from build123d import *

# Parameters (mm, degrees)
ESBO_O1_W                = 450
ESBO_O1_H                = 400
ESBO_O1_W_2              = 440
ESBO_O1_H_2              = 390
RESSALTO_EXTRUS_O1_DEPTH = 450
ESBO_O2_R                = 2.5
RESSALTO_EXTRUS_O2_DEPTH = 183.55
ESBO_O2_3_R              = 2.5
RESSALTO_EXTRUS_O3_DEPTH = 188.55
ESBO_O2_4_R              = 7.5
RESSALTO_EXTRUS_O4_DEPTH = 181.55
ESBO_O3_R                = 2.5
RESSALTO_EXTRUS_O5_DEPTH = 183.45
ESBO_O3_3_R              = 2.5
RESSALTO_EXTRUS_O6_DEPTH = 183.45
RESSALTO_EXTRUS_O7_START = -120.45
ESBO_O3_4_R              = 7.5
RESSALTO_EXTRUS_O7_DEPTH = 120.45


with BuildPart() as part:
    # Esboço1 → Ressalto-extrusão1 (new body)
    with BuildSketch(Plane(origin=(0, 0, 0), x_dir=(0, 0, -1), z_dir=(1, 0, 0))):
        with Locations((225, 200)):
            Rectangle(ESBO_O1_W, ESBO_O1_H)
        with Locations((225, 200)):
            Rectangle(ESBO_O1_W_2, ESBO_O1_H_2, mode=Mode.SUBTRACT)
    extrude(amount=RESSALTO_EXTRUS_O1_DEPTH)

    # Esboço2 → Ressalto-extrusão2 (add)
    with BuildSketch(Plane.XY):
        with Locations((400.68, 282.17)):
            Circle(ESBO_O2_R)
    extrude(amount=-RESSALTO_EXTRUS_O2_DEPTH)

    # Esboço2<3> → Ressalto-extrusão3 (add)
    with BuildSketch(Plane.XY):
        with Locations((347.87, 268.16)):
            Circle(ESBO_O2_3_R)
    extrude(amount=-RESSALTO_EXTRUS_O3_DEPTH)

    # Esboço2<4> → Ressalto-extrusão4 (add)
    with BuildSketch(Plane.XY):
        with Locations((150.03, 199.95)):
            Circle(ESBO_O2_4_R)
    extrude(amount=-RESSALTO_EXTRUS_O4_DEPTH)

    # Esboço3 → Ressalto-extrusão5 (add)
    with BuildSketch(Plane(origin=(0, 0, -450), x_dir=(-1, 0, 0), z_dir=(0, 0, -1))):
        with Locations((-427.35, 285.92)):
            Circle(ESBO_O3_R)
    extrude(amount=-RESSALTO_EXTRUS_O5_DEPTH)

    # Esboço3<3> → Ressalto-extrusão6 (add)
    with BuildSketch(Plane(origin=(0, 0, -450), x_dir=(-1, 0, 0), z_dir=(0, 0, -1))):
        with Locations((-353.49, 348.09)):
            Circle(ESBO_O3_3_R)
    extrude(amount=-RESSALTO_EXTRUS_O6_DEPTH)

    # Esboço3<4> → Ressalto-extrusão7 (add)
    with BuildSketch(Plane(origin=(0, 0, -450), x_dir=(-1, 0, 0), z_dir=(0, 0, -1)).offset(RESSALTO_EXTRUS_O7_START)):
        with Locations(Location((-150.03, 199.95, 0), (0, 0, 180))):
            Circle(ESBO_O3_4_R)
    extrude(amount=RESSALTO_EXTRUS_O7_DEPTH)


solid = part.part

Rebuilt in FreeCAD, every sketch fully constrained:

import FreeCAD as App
import Part
import Sketcher

V = App.Vector

doc = App.newDocument("Part")
body = doc.addObject("PartDesign::Body", "Body")

# Sketch on YZ plane
sketch1 = doc.addObject("Sketcher::SketchObject", "Sketch")
body.addObject(sketch1)
sketch1.AttachmentSupport = (doc.YZ_Plane, [""])
sketch1.MapMode = "FlatFace"
sketch1.addGeometry([
    Part.LineSegment(V(400, 0, 0), V(0, 0, 0)),  # 0
    Part.LineSegment(V(0, 0, 0), V(0, -450, 0)),  # 1
    Part.LineSegment(V(0, -450, 0), V(400, -450, 0)),  # 2
    Part.LineSegment(V(400, -450, 0), V(400, 0, 0)),  # 3
    Part.LineSegment(V(5, -445, 0), V(5, -5, 0)),  # 4
    Part.LineSegment(V(5, -5, 0), V(395, -5, 0)),  # 5
    Part.LineSegment(V(395, -5, 0), V(395, -445, 0)),  # 6
    Part.LineSegment(V(395, -445, 0), V(5, -445, 0)),  # 7
], False)
sketch1.addConstraint([
    Sketcher.Constraint("Coincident", 0, 2, 1, 1),
    Sketcher.Constraint("Coincident", 1, 2, 2, 1),
    Sketcher.Constraint("Coincident", 2, 2, 3, 1),
    Sketcher.Constraint("Coincident", 3, 2, 0, 1),
    Sketcher.Constraint("Coincident", 4, 2, 5, 1),
    Sketcher.Constraint("Coincident", 5, 2, 6, 1),
    Sketcher.Constraint("Coincident", 6, 2, 7, 1),
    Sketcher.Constraint("Coincident", 7, 2, 4, 1),
    Sketcher.Constraint("Horizontal", 0),
    Sketcher.Constraint("Vertical", 1),
    Sketcher.Constraint("Horizontal", 2),
    Sketcher.Constraint("Vertical", 3),
    Sketcher.Constraint("Vertical", 4),
    Sketcher.Constraint("Horizontal", 5),
    Sketcher.Constraint("Vertical", 6),
    Sketcher.Constraint("Horizontal", 7),
    Sketcher.Constraint("Coincident", 0, 2, -1, 1),
    Sketcher.Constraint("DistanceX", 0, 2, 0, 1, 400.0),
    Sketcher.Constraint("DistanceX", 5, 1, 5, 2, 390.0),
    Sketcher.Constraint("DistanceY", 1, 2, 1, 1, 450.0),
    Sketcher.Constraint("DistanceY", 4, 1, 4, 2, 440.0),
    Sketcher.Constraint("DistanceX", -1, 1, 4, 2, 5.0),
    Sketcher.Constraint("DistanceY", 4, 2, -1, 1, 5.0),
])
pad1 = doc.addObject("PartDesign::Pad", "Pad")
body.addObject(pad1)
pad1.Profile = sketch1
pad1.Length = 450

# Sketch on XY plane
sketch2 = doc.addObject("Sketcher::SketchObject", "Sketch001")
body.addObject(sketch2)
sketch2.AttachmentSupport = (doc.XY_Plane, [""])
sketch2.MapMode = "FlatFace"
sketch2.addGeometry(Part.Circle(V(400.7, 282.2, 0), V(0, 0, 1), 2.5), False)
sketch2.addConstraint([
    Sketcher.Constraint("Diameter", 0, 5.0),
    Sketcher.Constraint("DistanceX", -1, 1, 0, 3, 400.68),
    Sketcher.Constraint("DistanceY", -1, 1, 0, 3, 282.17),
])
pad2 = doc.addObject("PartDesign::Pad", "Pad001")
body.addObject(pad2)
pad2.Profile = sketch2
pad2.Length = 183.55
pad2.Reversed = True

# Sketch on XY plane
sketch3 = doc.addObject("Sketcher::SketchObject", "Sketch002")
body.addObject(sketch3)
sketch3.AttachmentSupport = (doc.XY_Plane, [""])
sketch3.MapMode = "FlatFace"
sketch3.addGeometry(Part.Circle(V(347.9, 268.2, 0), V(0, 0, 1), 2.5), False)
sketch3.addConstraint([
    Sketcher.Constraint("Diameter", 0, 5.0),
    Sketcher.Constraint("DistanceX", -1, 1, 0, 3, 347.87),
    Sketcher.Constraint("DistanceY", -1, 1, 0, 3, 268.16),
])
pad3 = doc.addObject("PartDesign::Pad", "Pad002")
body.addObject(pad3)
pad3.Profile = sketch3
pad3.Length = 188.55
pad3.Reversed = True

# Sketch on XY plane
sketch4 = doc.addObject("Sketcher::SketchObject", "Sketch003")
body.addObject(sketch4)
sketch4.AttachmentSupport = (doc.XY_Plane, [""])
sketch4.MapMode = "FlatFace"
sketch4.addGeometry(Part.Circle(V(150, 200, 0), V(0, 0, 1), 8), False)
sketch4.addConstraint([
    Sketcher.Constraint("Diameter", 0, 15.0),
    Sketcher.Constraint("DistanceX", -1, 1, 0, 3, 150.03),
    Sketcher.Constraint("DistanceY", -1, 1, 0, 3, 199.95),
])
pad4 = doc.addObject("PartDesign::Pad", "Pad003")
body.addObject(pad4)
pad4.Profile = sketch4
pad4.Length = 181.55
pad4.Reversed = True

# Sketch on XY plane
sketch5 = doc.addObject("Sketcher::SketchObject", "Sketch004")
body.addObject(sketch5)
sketch5.AttachmentSupport = (doc.XY_Plane, [""])
sketch5.MapMode = "FlatFace"
sketch5.AttachmentOffset = App.Placement(V(0, 0, -450), App.Rotation())
sketch5.addGeometry(Part.Circle(V(427.4, 285.9, 0), V(0, 0, 1), 2.5), False)
sketch5.addConstraint([
    Sketcher.Constraint("Diameter", 0, 5.0),
    Sketcher.Constraint("DistanceX", -1, 1, 0, 3, 427.35),
    Sketcher.Constraint("DistanceY", -1, 1, 0, 3, 285.92),
])
pad5 = doc.addObject("PartDesign::Pad", "Pad004")
body.addObject(pad5)
pad5.Profile = sketch5
pad5.Length = 183.45

# Sketch on XY plane
sketch6 = doc.addObject("Sketcher::SketchObject", "Sketch005")
body.addObject(sketch6)
sketch6.AttachmentSupport = (doc.XY_Plane, [""])
sketch6.MapMode = "FlatFace"
sketch6.AttachmentOffset = App.Placement(V(0, 0, -450), App.Rotation())
sketch6.addGeometry(Part.Circle(V(353.5, 348.1, 0), V(0, 0, 1), 2.5), False)
sketch6.addConstraint([
    Sketcher.Constraint("Diameter", 0, 5.0),
    Sketcher.Constraint("DistanceX", -1, 1, 0, 3, 353.49),
    Sketcher.Constraint("DistanceY", -1, 1, 0, 3, 348.09),
])
pad6 = doc.addObject("PartDesign::Pad", "Pad005")
body.addObject(pad6)
pad6.Profile = sketch6
pad6.Length = 183.45

# Sketch on XY plane
sketch7 = doc.addObject("Sketcher::SketchObject", "Sketch006")
body.addObject(sketch7)
sketch7.AttachmentSupport = (doc.XY_Plane, [""])
sketch7.MapMode = "FlatFace"
sketch7.AttachmentOffset = App.Placement(V(0, 0, -329.55), App.Rotation())
sketch7.addGeometry(Part.Circle(V(150, 200, 0), V(0, 0, 1), 8), False)
sketch7.addConstraint([
    Sketcher.Constraint("Diameter", 0, 15.0),
    Sketcher.Constraint("DistanceX", -1, 1, 0, 3, 150.03),
    Sketcher.Constraint("DistanceY", -1, 1, 0, 3, 199.95),
])
pad7 = doc.addObject("PartDesign::Pad", "Pad006")
body.addObject(pad7)
pad7.Profile = sketch7
pad7.Length = 120.45
pad7.Reversed = True

doc.recompute()
